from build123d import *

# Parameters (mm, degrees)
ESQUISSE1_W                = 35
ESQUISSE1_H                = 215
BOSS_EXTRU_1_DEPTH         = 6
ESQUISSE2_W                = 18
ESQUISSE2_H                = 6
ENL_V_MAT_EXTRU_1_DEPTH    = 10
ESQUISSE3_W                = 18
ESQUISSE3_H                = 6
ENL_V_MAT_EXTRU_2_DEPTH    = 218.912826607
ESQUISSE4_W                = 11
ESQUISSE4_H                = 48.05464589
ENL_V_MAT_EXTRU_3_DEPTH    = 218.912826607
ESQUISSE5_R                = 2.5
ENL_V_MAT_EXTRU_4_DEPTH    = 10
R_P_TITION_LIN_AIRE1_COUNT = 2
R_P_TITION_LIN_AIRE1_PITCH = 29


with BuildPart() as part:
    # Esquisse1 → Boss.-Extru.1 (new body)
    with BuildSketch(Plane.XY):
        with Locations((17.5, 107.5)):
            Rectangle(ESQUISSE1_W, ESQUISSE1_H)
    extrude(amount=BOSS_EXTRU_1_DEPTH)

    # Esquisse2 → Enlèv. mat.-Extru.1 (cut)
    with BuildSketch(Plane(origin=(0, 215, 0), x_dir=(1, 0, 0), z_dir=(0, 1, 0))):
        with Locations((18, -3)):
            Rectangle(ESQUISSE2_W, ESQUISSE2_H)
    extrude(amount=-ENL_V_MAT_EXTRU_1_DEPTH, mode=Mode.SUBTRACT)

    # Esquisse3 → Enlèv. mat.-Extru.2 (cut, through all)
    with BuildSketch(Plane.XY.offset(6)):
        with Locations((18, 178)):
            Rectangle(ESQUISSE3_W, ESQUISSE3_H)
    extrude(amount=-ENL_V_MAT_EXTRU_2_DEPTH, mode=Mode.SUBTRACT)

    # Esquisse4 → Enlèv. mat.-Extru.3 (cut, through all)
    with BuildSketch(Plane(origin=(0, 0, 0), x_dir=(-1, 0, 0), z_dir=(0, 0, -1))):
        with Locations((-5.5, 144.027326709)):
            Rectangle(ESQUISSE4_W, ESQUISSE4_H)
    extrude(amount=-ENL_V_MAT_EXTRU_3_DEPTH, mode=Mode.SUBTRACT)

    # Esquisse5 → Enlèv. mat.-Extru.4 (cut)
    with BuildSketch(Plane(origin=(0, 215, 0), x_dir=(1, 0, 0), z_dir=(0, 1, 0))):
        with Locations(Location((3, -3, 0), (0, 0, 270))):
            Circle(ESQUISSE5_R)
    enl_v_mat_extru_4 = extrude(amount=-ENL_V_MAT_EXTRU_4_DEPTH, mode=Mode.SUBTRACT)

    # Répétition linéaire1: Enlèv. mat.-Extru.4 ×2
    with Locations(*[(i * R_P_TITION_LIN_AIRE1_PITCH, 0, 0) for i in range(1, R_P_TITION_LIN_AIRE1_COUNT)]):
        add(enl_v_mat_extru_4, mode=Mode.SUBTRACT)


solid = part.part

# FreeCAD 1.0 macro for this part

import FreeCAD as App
import Part
import Sketcher
Q = App.Units.Quantity


def add_polygon(sketch, points):
    """Adds a closed chain of lines whose ends are joined by coincident constraints."""
    first, n = sketch.GeometryCount, len(points)
    for a, b in zip(points, points[1:] + points[:1]):
        sketch.addGeometry(Part.LineSegment(App.Vector(*a, 0), App.Vector(*b, 0)), False)
    for i in range(n):
        sketch.addConstraint(Sketcher.Constraint("Coincident", first + i, 2, first + (i + 1) % n, 1))

doc = App.newDocument("Part")
body = doc.addObject("PartDesign::Body", "Body")

sketch1 = body.newObject("Sketcher::SketchObject", "Sketch")
sketch1.AttachmentSupport = (doc.getObject("XY_Plane"), [""])
sketch1.MapMode = "FlatFace"
add_polygon(sketch1, [(0, 215), (0, 0), (35, 0), (35, 215)])
sketch1.addConstraint([
    Sketcher.Constraint("Vertical", 0),
    Sketcher.Constraint("Horizontal", 1),
    Sketcher.Constraint("Vertical", 2),
    Sketcher.Constraint("Horizontal", 3),
    Sketcher.Constraint("Coincident", 0, 2, -1, 1),
    Sketcher.Constraint("DistanceX", 1, 1, 1, 2, Q("35 mm")),
    Sketcher.Constraint("DistanceY", 0, 2, 0, 1, Q("215 mm")),
])
pad1 = body.newObject("PartDesign::Pad", "Pad")
pad1.Profile = sketch1
pad1.Length = 6

sketch2 = body.newObject("Sketcher::SketchObject", "Sketch001")
sketch2.AttachmentSupport = (doc.getObject("XZ_Plane"), [""])
sketch2.MapMode = "FlatFace"
sketch2.AttachmentOffset = App.Placement(App.Vector(0, 0, -215), App.Rotation())
add_polygon(sketch2, [(9, 0), (9, 6), (27, 6), (27, 0)])
sketch2.addConstraint([
    Sketcher.Constraint("Vertical", 0),
    Sketcher.Constraint("Horizontal", 1),
    Sketcher.Constraint("Vertical", 2),
    Sketcher.Constraint("Horizontal", 3),
    Sketcher.Constraint("PointOnObject", 2, 2, -1),
    Sketcher.Constraint("DistanceX", 1, 1, 1, 2, Q("18 mm")),
    Sketcher.Constraint("DistanceY", 0, 1, 0, 2, Q("6 mm")),
    Sketcher.Constraint("DistanceX", -1, 1, 0, 2, Q("9 mm")),
])
pocket1 = body.newObject("PartDesign::Pocket", "Pocket")
pocket1.Profile = sketch2
pocket1.Length = 10
pocket1.Reversed = True

sketch3 = body.newObject("Sketcher::SketchObject", "Sketch002")
sketch3.AttachmentSupport = (doc.getObject("XY_Plane"), [""])
sketch3.MapMode = "FlatFace"
sketch3.AttachmentOffset = App.Placement(App.Vector(0, 0, 6), App.Rotation())
add_polygon(sketch3, [(9, 181), (9, 175), (27, 175), (27, 181)])
sketch3.addConstraint([
    Sketcher.Constraint("Vertical", 0),
    Sketcher.Constraint("Horizontal", 1),
    Sketcher.Constraint("Vertical", 2),
    Sketcher.Constraint("Horizontal", 3),
    Sketcher.Constraint("DistanceX", 1, 1, 1, 2, Q("18 mm")),
    Sketcher.Constraint("DistanceY", 0, 2, 0, 1, Q("6 mm")),
    Sketcher.Constraint("DistanceX", -1, 1, 0, 2, Q("9 mm")),
    Sketcher.Constraint("DistanceY", -1, 1, 0, 2, Q("175 mm")),
])
pocket2 = body.newObject("PartDesign::Pocket", "Pocket001")
pocket2.Profile = sketch3
pocket2.Type = "ThroughAll"

sketch4 = body.newObject("Sketcher::SketchObject", "Sketch003")
sketch4.AttachmentSupport = (doc.getObject("XY_Plane"), [""])
sketch4.MapMode = "FlatFace"
add_polygon(sketch4, [(11, 168), (11, 120), (0, 120), (0, 168)])
sketch4.addConstraint([
    Sketcher.Constraint("Vertical", 0),
    Sketcher.Constraint("Horizontal", 1),
    Sketcher.Constraint("Vertical", 2),
    Sketcher.Constraint("Horizontal", 3),
    Sketcher.Constraint("PointOnObject", 1, 2, -2),
    Sketcher.Constraint("DistanceX", 1, 2, 1, 1, Q("11 mm")),
    Sketcher.Constraint("DistanceY", 0, 2, 0, 1, Q("48.054646 mm")),
    Sketcher.Constraint("DistanceY", -1, 1, 2, 2, Q("168.05465 mm")),
])
pocket3 = body.newObject("PartDesign::Pocket", "Pocket002")
pocket3.Profile = sketch4
pocket3.Type = "ThroughAll"
pocket3.Reversed = True

sketch5 = body.newObject("Sketcher::SketchObject", "Sketch004")
sketch5.AttachmentSupport = (doc.getObject("XZ_Plane"), [""])
sketch5.MapMode = "FlatFace"
sketch5.AttachmentOffset = App.Placement(App.Vector(0, 0, -215), App.Rotation())
sketch5.addGeometry(Part.Circle(App.Vector(3, 3, 0), App.Vector(0, 0, 1), 2.5), False)
sketch5.addConstraint([
    Sketcher.Constraint("Diameter", 0, Q("5 mm")),
    Sketcher.Constraint("DistanceX", -1, 1, 0, 3, Q("3 mm")),
    Sketcher.Constraint("DistanceY", -1, 1, 0, 3, Q("3 mm")),
])
pocket4 = body.newObject("PartDesign::Pocket", "Pocket003")
pocket4.Profile = sketch5
pocket4.Length = 10
pocket4.Reversed = True
doc.recompute()

linearpattern = body.newObject("PartDesign::LinearPattern", "LinearPattern")
linearpattern.Originals = [pocket4]
linearpattern.Direction = (doc.getObject("X_Axis"), [""])
linearpattern.Mode = "offset"
linearpattern.Offset = 29
linearpattern.Occurrences = 2
body.Tip = linearpattern

doc.recompute()
